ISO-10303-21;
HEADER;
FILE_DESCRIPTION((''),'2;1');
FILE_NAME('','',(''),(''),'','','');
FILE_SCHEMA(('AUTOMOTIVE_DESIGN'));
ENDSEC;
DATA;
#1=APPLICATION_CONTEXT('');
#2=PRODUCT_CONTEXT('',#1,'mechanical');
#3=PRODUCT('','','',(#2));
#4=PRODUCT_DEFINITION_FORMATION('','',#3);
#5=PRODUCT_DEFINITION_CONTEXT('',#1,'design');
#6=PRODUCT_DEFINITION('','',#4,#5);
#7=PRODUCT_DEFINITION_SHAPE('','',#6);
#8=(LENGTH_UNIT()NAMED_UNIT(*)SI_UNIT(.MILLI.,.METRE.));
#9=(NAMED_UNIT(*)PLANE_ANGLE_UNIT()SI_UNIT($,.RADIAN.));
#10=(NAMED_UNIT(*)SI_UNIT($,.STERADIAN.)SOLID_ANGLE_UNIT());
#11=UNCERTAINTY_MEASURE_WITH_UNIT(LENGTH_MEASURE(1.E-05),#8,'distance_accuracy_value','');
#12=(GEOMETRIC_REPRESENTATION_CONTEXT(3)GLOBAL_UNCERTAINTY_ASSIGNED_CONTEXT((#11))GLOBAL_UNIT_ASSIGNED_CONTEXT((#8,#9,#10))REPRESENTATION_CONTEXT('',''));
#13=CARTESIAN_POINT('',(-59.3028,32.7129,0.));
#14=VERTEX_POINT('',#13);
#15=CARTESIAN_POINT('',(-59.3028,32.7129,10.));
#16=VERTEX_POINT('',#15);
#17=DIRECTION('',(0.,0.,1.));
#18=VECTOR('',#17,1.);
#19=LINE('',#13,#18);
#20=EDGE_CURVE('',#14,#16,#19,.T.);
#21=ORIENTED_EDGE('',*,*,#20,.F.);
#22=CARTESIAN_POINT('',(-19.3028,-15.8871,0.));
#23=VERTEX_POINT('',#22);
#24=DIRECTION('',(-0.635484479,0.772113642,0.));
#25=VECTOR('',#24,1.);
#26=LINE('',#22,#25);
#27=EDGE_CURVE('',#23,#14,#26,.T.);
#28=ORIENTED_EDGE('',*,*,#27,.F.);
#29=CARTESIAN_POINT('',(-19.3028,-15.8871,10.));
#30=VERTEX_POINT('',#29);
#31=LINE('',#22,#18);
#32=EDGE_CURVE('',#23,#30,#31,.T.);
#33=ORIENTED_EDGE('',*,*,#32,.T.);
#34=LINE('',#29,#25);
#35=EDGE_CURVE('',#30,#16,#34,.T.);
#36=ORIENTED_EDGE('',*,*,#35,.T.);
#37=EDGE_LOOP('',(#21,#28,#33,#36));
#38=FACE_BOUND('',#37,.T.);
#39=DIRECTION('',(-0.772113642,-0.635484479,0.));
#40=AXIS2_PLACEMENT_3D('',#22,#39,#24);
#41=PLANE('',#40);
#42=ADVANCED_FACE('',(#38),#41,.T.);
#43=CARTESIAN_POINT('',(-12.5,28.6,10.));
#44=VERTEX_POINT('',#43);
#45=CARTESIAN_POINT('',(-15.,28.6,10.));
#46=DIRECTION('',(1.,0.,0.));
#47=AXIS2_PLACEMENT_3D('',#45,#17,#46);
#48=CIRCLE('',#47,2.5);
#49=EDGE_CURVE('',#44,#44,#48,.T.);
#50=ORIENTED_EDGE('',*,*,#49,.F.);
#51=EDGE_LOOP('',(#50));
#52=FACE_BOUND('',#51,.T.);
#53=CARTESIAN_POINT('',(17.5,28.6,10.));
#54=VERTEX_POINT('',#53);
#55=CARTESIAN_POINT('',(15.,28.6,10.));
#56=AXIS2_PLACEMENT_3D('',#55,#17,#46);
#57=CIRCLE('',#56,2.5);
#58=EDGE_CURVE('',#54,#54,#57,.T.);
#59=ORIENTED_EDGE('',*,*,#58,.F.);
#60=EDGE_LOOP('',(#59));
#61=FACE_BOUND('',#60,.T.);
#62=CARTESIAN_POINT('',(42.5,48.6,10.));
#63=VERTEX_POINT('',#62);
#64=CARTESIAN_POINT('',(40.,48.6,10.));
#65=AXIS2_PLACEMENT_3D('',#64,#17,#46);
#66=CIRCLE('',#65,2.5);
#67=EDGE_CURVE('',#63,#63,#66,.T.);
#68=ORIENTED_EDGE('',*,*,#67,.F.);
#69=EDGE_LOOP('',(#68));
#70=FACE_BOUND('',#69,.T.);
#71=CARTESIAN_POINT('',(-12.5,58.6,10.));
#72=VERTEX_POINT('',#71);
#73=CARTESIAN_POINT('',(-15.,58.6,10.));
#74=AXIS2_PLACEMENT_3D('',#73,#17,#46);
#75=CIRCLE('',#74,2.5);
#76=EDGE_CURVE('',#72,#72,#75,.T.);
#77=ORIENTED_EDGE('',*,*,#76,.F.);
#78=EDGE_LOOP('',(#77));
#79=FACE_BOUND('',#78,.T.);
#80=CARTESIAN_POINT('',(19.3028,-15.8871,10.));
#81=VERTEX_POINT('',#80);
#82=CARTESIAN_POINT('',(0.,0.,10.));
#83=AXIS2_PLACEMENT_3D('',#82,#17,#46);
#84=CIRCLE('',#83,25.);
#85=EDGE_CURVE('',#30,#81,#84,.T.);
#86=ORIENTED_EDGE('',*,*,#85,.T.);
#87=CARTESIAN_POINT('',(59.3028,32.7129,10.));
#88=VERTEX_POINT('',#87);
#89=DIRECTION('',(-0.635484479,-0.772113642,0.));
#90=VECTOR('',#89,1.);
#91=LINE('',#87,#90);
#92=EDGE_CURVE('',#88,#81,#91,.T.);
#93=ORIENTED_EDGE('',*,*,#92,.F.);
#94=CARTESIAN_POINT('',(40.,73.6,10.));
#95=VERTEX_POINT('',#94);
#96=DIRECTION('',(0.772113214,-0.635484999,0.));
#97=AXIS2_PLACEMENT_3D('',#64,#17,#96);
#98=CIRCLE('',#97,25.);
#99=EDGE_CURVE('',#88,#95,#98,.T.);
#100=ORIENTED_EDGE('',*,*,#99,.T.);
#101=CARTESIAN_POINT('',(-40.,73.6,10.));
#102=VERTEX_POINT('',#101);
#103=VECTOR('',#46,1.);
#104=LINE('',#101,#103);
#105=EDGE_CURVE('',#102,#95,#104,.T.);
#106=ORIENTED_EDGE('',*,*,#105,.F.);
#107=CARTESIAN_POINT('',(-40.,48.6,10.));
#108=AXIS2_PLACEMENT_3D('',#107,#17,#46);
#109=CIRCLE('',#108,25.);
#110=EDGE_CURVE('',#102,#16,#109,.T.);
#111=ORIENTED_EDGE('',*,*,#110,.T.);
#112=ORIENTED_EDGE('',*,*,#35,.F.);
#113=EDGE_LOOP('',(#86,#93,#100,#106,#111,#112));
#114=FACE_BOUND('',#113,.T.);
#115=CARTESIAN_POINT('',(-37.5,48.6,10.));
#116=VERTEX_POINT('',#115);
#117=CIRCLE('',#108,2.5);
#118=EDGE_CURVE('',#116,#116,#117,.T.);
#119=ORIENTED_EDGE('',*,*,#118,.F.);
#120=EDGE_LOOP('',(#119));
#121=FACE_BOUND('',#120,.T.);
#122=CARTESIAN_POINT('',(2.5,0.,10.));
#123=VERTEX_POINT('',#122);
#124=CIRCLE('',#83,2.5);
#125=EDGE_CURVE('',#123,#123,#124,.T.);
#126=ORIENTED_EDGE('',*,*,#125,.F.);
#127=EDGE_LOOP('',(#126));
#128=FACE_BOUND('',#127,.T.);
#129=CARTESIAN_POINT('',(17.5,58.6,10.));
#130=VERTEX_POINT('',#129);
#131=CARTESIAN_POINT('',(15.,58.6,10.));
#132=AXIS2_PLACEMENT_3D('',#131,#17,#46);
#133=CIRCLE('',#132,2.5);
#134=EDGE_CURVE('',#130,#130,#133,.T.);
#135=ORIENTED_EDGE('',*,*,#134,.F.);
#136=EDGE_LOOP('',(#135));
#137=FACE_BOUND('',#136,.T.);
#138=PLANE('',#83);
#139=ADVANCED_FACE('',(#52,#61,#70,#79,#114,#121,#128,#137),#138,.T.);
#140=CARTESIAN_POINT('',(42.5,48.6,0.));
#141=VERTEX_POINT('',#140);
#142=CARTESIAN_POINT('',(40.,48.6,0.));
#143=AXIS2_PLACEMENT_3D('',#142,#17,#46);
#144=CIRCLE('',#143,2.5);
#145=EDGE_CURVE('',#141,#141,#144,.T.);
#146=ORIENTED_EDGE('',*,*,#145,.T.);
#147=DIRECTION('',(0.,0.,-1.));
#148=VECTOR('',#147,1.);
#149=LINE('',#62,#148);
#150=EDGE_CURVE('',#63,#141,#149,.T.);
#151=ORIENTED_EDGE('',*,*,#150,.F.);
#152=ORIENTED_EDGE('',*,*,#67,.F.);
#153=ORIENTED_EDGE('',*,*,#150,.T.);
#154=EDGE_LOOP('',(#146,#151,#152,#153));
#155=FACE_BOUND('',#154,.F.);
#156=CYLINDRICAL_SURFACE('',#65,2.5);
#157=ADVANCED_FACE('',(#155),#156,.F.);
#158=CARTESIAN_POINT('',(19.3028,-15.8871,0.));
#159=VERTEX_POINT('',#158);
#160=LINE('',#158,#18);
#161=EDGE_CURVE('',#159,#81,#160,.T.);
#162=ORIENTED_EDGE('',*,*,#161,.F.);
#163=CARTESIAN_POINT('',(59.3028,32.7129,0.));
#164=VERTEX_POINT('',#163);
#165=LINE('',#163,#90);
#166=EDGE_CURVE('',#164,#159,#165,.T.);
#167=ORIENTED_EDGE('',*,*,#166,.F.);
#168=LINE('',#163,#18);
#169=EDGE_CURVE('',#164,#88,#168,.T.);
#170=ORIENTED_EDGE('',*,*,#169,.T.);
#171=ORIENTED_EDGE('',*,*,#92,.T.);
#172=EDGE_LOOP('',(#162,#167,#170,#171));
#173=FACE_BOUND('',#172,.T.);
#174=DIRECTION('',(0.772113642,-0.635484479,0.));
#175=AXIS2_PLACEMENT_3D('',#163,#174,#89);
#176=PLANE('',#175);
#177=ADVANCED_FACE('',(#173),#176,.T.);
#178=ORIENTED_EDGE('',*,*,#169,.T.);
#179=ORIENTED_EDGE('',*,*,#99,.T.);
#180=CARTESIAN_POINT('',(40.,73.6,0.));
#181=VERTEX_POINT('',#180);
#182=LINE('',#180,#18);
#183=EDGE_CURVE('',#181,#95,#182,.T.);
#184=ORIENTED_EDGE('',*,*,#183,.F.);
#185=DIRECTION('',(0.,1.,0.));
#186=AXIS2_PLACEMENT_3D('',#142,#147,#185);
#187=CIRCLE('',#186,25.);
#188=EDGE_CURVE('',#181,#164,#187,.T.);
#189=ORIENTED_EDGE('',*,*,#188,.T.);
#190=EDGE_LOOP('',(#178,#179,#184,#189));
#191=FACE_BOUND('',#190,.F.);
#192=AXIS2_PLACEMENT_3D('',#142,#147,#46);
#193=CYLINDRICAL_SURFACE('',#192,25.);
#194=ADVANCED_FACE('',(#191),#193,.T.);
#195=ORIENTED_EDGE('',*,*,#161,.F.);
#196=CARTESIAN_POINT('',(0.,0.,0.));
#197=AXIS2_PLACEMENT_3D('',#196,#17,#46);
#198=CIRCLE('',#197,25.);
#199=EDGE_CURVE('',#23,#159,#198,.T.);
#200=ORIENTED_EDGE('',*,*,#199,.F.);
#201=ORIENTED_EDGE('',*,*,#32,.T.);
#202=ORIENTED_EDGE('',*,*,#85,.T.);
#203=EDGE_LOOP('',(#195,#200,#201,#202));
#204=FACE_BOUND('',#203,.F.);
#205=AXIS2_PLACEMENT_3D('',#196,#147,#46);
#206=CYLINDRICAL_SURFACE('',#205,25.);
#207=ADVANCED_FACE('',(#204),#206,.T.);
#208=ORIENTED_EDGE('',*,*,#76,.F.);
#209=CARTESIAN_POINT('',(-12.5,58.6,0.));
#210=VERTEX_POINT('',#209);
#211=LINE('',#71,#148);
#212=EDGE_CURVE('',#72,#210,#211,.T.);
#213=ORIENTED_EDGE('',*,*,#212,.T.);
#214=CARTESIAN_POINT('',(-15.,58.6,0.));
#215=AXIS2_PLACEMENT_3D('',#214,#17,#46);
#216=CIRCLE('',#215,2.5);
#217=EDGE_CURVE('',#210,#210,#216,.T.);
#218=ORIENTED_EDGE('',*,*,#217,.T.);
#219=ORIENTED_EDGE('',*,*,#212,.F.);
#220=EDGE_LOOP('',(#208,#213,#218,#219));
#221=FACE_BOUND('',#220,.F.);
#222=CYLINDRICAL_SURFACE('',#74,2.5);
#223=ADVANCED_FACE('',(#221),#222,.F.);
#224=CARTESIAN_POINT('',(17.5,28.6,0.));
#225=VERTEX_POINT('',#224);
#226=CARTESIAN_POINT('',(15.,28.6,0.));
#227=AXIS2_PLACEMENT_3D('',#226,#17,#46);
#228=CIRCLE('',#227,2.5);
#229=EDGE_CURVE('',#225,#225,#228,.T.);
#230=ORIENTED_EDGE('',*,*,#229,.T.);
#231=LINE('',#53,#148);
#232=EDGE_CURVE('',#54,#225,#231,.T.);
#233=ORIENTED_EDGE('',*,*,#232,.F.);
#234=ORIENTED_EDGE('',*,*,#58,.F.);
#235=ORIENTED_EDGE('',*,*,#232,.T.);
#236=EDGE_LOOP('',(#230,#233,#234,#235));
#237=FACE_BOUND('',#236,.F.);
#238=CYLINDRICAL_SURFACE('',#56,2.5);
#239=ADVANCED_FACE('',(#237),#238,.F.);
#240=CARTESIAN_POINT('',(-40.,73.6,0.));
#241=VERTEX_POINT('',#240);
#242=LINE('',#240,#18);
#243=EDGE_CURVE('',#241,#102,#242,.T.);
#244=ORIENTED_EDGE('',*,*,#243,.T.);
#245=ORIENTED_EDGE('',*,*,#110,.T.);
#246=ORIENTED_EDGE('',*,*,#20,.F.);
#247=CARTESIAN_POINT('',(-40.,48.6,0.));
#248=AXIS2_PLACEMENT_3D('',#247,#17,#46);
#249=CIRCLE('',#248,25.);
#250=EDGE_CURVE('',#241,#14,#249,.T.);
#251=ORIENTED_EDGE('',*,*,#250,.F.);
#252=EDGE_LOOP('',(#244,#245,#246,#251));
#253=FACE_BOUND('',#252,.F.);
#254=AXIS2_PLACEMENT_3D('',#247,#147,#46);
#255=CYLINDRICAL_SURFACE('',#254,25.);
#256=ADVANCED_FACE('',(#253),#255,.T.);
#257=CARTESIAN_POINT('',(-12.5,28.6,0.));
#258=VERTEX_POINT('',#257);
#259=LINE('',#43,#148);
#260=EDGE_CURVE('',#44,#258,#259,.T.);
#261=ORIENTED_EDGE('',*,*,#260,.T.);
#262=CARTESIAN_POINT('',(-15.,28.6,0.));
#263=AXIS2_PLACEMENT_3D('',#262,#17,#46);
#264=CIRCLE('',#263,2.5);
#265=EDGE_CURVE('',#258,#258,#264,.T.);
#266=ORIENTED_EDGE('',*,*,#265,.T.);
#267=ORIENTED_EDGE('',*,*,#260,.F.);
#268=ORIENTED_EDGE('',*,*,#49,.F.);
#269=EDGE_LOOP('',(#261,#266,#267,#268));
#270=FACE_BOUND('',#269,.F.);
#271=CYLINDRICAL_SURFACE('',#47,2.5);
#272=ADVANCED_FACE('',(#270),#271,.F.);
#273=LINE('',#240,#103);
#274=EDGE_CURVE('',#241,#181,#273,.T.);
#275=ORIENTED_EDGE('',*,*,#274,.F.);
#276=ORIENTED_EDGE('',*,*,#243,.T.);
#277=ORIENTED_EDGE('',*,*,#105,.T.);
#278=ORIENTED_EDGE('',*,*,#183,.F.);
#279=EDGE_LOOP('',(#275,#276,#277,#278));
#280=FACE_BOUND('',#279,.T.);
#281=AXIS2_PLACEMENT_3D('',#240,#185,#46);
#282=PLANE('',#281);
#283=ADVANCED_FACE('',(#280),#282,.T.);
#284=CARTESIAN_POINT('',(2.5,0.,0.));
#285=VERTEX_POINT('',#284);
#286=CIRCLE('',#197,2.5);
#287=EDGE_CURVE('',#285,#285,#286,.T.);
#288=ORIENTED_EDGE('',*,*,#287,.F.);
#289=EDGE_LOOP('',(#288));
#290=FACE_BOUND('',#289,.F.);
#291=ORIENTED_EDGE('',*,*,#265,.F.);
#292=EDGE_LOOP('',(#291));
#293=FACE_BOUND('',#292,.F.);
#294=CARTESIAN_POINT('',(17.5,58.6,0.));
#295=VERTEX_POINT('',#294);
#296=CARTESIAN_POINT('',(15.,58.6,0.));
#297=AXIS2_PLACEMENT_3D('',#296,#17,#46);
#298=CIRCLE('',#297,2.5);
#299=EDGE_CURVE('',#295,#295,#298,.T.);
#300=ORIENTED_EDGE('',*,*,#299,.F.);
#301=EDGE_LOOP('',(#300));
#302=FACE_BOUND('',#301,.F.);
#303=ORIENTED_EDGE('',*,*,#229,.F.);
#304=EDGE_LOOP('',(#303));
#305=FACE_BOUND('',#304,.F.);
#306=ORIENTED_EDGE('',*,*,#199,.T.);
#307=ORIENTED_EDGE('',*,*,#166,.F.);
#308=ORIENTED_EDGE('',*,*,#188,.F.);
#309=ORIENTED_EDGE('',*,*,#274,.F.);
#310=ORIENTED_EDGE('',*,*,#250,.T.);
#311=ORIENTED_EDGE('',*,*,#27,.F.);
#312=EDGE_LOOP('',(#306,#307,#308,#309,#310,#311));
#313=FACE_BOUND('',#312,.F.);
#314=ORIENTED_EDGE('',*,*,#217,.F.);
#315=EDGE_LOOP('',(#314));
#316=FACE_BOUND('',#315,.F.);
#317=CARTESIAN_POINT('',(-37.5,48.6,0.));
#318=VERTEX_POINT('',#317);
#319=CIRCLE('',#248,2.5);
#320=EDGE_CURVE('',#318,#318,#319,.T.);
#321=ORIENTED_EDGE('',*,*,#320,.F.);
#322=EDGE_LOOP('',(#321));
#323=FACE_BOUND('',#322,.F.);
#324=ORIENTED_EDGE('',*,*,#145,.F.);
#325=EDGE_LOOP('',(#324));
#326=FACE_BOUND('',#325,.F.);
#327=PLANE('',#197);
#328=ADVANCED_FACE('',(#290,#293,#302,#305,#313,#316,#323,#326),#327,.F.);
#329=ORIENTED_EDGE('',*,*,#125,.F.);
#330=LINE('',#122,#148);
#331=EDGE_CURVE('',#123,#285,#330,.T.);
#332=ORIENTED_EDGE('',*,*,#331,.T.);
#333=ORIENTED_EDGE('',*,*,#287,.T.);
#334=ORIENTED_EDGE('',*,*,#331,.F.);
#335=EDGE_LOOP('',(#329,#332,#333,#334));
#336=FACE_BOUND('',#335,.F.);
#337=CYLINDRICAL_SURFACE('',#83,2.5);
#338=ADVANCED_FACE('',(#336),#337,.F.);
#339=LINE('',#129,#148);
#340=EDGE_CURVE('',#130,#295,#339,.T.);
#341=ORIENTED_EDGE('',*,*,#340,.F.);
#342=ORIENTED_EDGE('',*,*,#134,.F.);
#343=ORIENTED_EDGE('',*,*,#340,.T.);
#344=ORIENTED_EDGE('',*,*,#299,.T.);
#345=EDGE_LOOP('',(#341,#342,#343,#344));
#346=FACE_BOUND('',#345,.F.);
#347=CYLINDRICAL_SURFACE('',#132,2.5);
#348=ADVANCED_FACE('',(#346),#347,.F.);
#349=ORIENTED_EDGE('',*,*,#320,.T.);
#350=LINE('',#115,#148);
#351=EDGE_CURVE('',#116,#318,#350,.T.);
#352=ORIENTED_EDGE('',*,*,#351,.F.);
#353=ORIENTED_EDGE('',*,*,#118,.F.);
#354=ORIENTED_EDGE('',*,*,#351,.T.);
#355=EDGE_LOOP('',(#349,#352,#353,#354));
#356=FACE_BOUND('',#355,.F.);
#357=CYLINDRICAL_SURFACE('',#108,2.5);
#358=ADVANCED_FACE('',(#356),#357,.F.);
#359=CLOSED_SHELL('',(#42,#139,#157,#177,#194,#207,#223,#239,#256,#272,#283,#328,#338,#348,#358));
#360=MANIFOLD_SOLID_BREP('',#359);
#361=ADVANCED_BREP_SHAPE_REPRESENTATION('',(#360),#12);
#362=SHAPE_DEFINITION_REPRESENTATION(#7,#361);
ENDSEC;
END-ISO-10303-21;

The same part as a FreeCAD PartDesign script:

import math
import FreeCAD as App
import Part
import Sketcher
Q = App.Units.Quantity

doc = App.newDocument("Part")
body = doc.addObject("PartDesign::Body", "Body")

sketch1 = doc.addObject("Sketcher::SketchObject", "Sketch")
body.addObject(sketch1)
sketch1.AttachmentSupport = (doc.XY_Plane, [""])
sketch1.MapMode = "FlatFace"
sketch1.addGeometry(Part.ArcOfCircle(Part.Circle(App.Vector(0, 0, 0), App.Vector(0, 0, 1), 25), math.radians(-141), math.radians(-39)), False)
sketch1.addGeometry(Part.LineSegment(App.Vector(19, -16, 0), App.Vector(59, 33, 0)), False)
sketch1.addGeometry(Part.ArcOfCircle(Part.Circle(App.Vector(40, 49, 0), App.Vector(0, 0, 1), 25), math.radians(-39), math.radians(90)), False)
sketch1.addGeometry(Part.LineSegment(App.Vector(40, 74, 0), App.Vector(-40, 74, 0)), False)
sketch1.addGeometry(Part.ArcOfCircle(Part.Circle(App.Vector(-40, 49, 0), App.Vector(0, 0, 1), 25), math.radians(90), math.radians(219)), False)
sketch1.addGeometry(Part.LineSegment(App.Vector(-59, 33, 0), App.Vector(-19, -16, 0)), False)
sketch1.addConstraint(Sketcher.Constraint("Tangent", 0, 2, 1, 1))
sketch1.addConstraint(Sketcher.Constraint("Tangent", 1, 2, 2, 1))
sketch1.addConstraint(Sketcher.Constraint("Tangent", 2, 2, 3, 1))
sketch1.addConstraint(Sketcher.Constraint("Tangent", 3, 2, 4, 1))
sketch1.addConstraint(Sketcher.Constraint("Tangent", 4, 2, 5, 1))
sketch1.addConstraint(Sketcher.Constraint("Tangent", 5, 2, 0, 1))
sketch1.addConstraint(Sketcher.Constraint("Horizontal", 3))
sketch1.addConstraint(Sketcher.Constraint("Coincident", 0, 3, -1, 1))
sketch1.addConstraint(Sketcher.Constraint("Equal", 0, 2))
sketch1.addConstraint(Sketcher.Constraint("Equal", 2, 4))
sketch1.addConstraint(Sketcher.Constraint("Horizontal", 1, 2, 4, 2))
sketch1.addConstraint(Sketcher.Constraint("Radius", 0, Q("25 mm")))
sketch1.addConstraint(Sketcher.Constraint("DistanceX", -1, 1, 2, 3, Q("40 mm")))
sketch1.addConstraint(Sketcher.Constraint("DistanceY", -1, 1, 2, 3, Q("48.6 mm")))
pad1 = doc.addObject("PartDesign::Pad", "Pad")
body.addObject(pad1)
pad1.Profile = sketch1
pad1.Length = 10

sketch2 = doc.addObject("Sketcher::SketchObject", "Sketch001")
body.addObject(sketch2)
sketch2.AttachmentSupport = (doc.XY_Plane, [""])
sketch2.MapMode = "FlatFace"
sketch2.AttachmentOffset = App.Placement(App.Vector(0, 0, 10), App.Rotation())
sketch2.addGeometry(Part.Circle(App.Vector(40, 48.6, 0), App.Vector(0, 0, 1), 2.5), False)
sketch2.addGeometry(Part.Circle(App.Vector(0, 0, 0), App.Vector(0, 0, 1), 2.5), False)
sketch2.addGeometry(Part.Circle(App.Vector(-40, 48.6, 0), App.Vector(0, 0, 1), 2.5), False)
sketch2.addConstraint(Sketcher.Constraint("Coincident", 1, 3, -1, 1))
sketch2.addConstraint(Sketcher.Constraint("Equal", 0, 1))
sketch2.addConstraint(Sketcher.Constraint("Equal", 1, 2))
sketch2.addConstraint(Sketcher.Constraint("Symmetric", 0, 3, 2, 3, -2))
sketch2.addConstraint(Sketcher.Constraint("Diameter", 0, Q("5 mm")))
sketch2.addConstraint(Sketcher.Constraint("DistanceX", -1, 1, 0, 3, Q("40 mm")))
sketch2.addConstraint(Sketcher.Constraint("DistanceY", -1, 1, 0, 3, Q("48.6 mm")))
pocket1 = doc.addObject("PartDesign::Pocket", "Pocket")
body.addObject(pocket1)
pocket1.Profile = sketch2
pocket1.Type = "UpToFirst"

sketch3 = doc.addObject("Sketcher::SketchObject", "Sketch002")
body.addObject(sketch3)
sketch3.AttachmentSupport = (doc.XY_Plane, [""])
sketch3.MapMode = "FlatFace"
sketch3.AttachmentOffset = App.Placement(App.Vector(0, 0, 10), App.Rotation())
sketch3.addGeometry(Part.Circle(App.Vector(-15, 58.6, 0), App.Vector(0, 0, 1), 2.5), False)
sketch3.addGeometry(Part.Circle(App.Vector(15, 58.6, 0), App.Vector(0, 0, 1), 2.5), False)
sketch3.addGeometry(Part.Circle(App.Vector(-15, 28.6, 0), App.Vector(0, 0, 1), 2.5), False)
sketch3.addGeometry(Part.Circle(App.Vector(15, 28.6, 0), App.Vector(0, 0, 1), 2.5), False)
sketch3.addConstraint(Sketcher.Constraint("Equal", 0, 1))
sketch3.addConstraint(Sketcher.Constraint("Equal", 1, 2))
sketch3.addConstraint(Sketcher.Constraint("Equal", 2, 3))
sketch3.addConstraint(Sketcher.Constraint("Symmetric", 0, 3, 1, 3, -2))
sketch3.addConstraint(Sketcher.Constraint("Symmetric", 2, 3, 3, 3, -2))
sketch3.addConstraint(Sketcher.Constraint("Vertical", 0, 3, 2, 3))
sketch3.addConstraint(Sketcher.Constraint("Diameter", 0, Q("5 mm")))
sketch3.addConstraint(Sketcher.Constraint("DistanceX", 0, 3, -1, 1, Q("15 mm")))
sketch3.addConstraint(Sketcher.Constraint("DistanceY", 2, 3, 0, 3, Q("30 mm")))
sketch3.addConstraint(Sketcher.Constraint("DistanceY", -1, 1, 0, 3, Q("58.6 mm")))
pocket2 = doc.addObject("PartDesign::Pocket", "Pocket001")
body.addObject(pocket2)
pocket2.Profile = sketch3
pocket2.Type = "UpToFirst"

doc.recompute()
